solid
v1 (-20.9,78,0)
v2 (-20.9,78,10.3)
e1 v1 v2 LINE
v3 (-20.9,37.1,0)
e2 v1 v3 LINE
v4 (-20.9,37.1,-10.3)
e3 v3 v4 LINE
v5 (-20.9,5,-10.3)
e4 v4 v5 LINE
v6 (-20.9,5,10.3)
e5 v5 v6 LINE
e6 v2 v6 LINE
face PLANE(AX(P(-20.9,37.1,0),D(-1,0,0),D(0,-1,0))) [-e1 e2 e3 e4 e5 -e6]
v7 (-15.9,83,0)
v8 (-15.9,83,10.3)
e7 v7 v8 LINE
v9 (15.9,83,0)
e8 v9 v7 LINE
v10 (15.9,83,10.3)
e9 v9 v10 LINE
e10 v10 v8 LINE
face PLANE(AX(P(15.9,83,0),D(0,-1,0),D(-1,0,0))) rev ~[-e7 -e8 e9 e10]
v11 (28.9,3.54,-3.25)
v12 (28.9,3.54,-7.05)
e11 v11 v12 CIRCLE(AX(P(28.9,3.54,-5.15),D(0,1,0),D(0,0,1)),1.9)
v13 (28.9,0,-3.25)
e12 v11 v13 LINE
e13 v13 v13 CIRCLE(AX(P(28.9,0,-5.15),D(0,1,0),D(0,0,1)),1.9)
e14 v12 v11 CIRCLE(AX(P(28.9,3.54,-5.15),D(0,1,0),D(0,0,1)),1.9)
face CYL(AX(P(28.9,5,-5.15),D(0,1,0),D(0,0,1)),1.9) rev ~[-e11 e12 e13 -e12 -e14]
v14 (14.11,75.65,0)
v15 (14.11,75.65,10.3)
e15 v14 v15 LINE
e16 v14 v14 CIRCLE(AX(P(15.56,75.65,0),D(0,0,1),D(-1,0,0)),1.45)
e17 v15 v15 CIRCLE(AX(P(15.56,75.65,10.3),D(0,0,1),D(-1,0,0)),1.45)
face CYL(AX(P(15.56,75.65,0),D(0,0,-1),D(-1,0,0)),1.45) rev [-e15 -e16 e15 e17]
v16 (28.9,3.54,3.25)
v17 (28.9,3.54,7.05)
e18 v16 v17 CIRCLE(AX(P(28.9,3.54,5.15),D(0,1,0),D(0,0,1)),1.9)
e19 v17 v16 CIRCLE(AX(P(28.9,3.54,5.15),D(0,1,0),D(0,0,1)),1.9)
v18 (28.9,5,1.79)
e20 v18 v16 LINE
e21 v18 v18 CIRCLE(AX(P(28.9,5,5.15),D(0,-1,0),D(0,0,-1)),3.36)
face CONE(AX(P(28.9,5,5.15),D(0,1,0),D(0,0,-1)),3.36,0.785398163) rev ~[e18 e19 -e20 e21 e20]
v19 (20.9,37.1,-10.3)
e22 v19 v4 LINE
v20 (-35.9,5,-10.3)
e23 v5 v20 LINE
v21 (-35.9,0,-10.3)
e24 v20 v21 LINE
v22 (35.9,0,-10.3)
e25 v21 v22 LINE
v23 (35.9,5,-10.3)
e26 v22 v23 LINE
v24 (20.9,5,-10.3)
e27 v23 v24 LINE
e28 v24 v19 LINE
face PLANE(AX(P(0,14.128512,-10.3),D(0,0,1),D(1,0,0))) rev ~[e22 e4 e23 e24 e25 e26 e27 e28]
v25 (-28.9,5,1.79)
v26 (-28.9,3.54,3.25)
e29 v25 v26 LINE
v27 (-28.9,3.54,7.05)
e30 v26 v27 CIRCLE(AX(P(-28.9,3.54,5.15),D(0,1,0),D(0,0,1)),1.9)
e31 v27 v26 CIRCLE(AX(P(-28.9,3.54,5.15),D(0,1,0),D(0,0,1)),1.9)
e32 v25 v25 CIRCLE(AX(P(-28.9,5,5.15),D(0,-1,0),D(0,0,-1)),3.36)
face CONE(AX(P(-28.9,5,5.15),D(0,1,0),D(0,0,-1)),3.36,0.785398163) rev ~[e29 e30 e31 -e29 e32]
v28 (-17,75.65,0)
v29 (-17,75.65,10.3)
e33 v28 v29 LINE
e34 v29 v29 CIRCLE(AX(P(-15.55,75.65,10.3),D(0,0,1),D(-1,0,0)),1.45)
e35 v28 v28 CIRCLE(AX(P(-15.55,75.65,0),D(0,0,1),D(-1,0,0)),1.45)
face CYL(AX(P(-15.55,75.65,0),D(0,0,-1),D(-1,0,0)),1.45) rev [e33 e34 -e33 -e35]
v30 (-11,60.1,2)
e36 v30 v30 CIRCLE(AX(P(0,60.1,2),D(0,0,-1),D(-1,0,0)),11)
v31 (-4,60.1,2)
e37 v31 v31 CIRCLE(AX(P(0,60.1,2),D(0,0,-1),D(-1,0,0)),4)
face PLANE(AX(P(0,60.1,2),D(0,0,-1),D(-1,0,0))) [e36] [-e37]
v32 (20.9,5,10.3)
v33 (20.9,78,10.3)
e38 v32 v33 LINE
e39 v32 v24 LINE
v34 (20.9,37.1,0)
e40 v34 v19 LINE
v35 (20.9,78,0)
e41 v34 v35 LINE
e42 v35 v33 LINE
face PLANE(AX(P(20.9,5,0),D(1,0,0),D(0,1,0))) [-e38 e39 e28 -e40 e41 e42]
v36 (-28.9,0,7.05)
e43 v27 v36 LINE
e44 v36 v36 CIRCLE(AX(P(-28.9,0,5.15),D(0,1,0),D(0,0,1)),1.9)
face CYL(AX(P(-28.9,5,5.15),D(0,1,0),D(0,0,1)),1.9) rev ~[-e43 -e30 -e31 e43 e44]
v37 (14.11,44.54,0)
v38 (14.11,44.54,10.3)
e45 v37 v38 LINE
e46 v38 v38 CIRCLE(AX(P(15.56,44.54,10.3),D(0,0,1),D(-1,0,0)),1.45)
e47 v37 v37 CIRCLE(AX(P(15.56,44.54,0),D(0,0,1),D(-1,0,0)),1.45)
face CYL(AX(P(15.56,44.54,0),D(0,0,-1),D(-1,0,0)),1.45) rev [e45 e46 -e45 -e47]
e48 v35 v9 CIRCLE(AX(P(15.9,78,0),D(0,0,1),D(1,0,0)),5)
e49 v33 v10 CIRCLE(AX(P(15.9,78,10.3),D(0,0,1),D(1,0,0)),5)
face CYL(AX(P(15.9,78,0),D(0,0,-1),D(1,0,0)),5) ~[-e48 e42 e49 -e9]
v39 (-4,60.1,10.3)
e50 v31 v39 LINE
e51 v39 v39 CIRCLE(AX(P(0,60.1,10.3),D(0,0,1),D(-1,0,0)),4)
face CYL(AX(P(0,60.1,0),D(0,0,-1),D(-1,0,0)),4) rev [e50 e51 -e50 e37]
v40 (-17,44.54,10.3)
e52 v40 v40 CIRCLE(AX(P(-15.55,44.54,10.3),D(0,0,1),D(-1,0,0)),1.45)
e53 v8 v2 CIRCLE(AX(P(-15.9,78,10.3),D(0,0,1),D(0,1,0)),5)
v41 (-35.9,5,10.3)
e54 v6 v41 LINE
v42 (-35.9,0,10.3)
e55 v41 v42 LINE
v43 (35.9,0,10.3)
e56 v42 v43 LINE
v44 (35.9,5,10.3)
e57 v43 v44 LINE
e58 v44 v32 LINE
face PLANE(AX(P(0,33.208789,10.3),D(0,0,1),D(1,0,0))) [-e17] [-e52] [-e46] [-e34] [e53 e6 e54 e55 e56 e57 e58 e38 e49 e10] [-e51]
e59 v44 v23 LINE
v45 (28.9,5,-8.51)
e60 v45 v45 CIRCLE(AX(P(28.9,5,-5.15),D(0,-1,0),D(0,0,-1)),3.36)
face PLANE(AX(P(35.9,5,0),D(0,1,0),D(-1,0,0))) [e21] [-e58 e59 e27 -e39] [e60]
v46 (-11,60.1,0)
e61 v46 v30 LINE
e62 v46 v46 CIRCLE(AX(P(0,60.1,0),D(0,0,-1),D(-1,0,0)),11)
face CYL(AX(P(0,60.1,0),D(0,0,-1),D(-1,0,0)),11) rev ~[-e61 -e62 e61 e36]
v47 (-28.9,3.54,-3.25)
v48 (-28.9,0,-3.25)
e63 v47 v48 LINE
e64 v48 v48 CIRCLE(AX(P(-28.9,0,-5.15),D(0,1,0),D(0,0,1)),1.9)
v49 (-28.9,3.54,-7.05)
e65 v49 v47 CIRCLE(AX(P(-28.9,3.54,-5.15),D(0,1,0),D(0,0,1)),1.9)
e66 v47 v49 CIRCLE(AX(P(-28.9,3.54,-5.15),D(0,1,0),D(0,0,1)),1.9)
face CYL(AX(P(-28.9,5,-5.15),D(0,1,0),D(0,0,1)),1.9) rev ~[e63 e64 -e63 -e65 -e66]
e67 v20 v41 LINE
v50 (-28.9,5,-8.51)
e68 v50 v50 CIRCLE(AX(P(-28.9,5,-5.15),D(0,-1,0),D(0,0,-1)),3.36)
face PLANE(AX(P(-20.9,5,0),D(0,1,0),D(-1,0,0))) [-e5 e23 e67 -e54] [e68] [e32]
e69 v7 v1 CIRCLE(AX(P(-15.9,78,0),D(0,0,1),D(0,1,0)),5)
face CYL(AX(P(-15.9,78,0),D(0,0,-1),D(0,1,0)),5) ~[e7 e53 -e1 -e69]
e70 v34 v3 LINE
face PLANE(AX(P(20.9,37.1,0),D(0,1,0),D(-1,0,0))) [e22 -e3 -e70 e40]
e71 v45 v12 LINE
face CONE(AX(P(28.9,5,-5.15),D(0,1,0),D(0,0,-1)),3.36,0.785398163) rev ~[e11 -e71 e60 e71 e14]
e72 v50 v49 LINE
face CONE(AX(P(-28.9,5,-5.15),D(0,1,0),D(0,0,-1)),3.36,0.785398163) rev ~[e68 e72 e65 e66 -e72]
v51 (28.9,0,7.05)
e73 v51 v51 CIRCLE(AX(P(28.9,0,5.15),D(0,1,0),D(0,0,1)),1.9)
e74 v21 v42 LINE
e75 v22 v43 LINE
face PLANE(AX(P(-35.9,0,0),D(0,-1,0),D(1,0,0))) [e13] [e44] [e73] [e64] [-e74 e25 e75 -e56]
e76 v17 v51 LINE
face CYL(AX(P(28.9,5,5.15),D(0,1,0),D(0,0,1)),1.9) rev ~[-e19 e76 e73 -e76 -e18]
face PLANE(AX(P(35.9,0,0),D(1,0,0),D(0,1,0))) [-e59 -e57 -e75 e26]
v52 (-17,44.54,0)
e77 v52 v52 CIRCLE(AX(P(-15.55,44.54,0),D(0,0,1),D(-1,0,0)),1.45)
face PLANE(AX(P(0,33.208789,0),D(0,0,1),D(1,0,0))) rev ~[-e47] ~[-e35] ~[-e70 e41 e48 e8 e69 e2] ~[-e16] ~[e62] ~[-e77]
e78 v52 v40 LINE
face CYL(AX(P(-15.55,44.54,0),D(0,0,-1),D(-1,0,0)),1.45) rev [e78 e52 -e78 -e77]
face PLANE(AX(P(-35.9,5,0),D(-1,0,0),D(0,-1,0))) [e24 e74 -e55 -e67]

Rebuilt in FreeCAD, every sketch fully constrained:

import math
import FreeCAD as App
import Part
import Sketcher
from FreeCAD import Vector
Q = App.Units.Quantity


def add_polygon(sketch, points):
    """Adds a closed chain of lines whose ends are joined by coincident constraints."""
    first, n = sketch.GeometryCount, len(points)
    for a, b in zip(points, points[1:] + points[:1]):
        sketch.addGeometry(Part.LineSegment(App.Vector(*a, 0), App.Vector(*b, 0)), False)
    for i in range(n):
        sketch.addConstraint(Sketcher.Constraint("Coincident", first + i, 2, first + (i + 1) % n, 1))

doc = App.newDocument("Part")
params = doc.addObject("Spreadsheet::Sheet", "Params")
for row, (alias, value) in enumerate([
    ("sketch1_diameter", "8 mm"),
    ("sketch1_radius", "5 mm"),
    ("sketch1_diameter2", "2.9 mm"),
    ("sketch1_width", "15 mm"),
    ("sketch1_height", "5 mm"),
    ("pad1_length", "10.3 mm"),
    ("sketch2_diameter", "3.8 mm"),
    ("pocket1_length", "10.3 mm"),
    ("sketch3_diameter", "3.6 mm"),
    ("hole_diameter", "3.6 mm"),
    ("hole_csink_diameter", "6.72 mm"),
    ("sketch4_diameter", "22 mm"),
    ("pocket2_length", "2 mm"),
    ("sketch5_width", "15 mm"),
    ("sketch5_height", "5 mm"),
    ("sketch5_width2", "41.8 mm"),
    ("sketch5_height2", "32.1 mm"),
    ("pad2_length", "10.3 mm"),
    ("sketch6_diameter", "3.8 mm"),
    ("pocket3_length", "10.3 mm"),
    ("sketch7_diameter", "3.6 mm"),
    ("hole2_diameter", "3.6 mm"),
    ("hole2_csink_diameter", "6.72 mm"),
], start=1):
    params.set(f"A{row}", alias)
    params.set(f"B{row}", "=" + value)
    params.setAlias(f"B{row}", alias)

body = doc.addObject("PartDesign::Body", "Body")

# Sketch on XY plane
sketch1 = body.newObject("Sketcher::SketchObject", "Sketch")
sketch1.AttachmentSupport = (doc.getObject("XY_Plane"), [""])
sketch1.MapMode = "FlatFace"
sketch1.addGeometry(Part.LineSegment(Vector(-35.9, 0, 0), Vector(35.9, 0, 0)), False)
sketch1.addGeometry(Part.LineSegment(Vector(35.9, 0, 0), Vector(35.9, 5, 0)), False)
sketch1.addGeometry(Part.LineSegment(Vector(35.9, 5, 0), Vector(20.9, 5, 0)), False)
sketch1.addGeometry(Part.LineSegment(Vector(20.9, 5, 0), Vector(20.9, 78, 0)), False)
sketch1.addGeometry(Part.ArcOfCircle(Part.Circle(Vector(15.9, 78, 0), Vector(0, 0, 1), 5), math.radians(0), math.radians(90)), False)
sketch1.addGeometry(Part.LineSegment(Vector(15.9, 83, 0), Vector(-15.9, 83, 0)), False)
sketch1.addGeometry(Part.ArcOfCircle(Part.Circle(Vector(-15.9, 78, 0), Vector(0, 0, 1), 5), math.radians(90), math.radians(180)), False)
sketch1.addGeometry(Part.LineSegment(Vector(-20.9, 78, 0), Vector(-20.9, 5, 0)), False)
sketch1.addGeometry(Part.LineSegment(Vector(-20.9, 5, 0), Vector(-35.9, 5, 0)), False)
sketch1.addGeometry(Part.LineSegment(Vector(-35.9, 5, 0), Vector(-35.9, 0, 0)), False)
sketch1.addGeometry(Part.Circle(Vector(-15.55, 44.54, 0), Vector(0, 0, 1), 1.45), False)
sketch1.addGeometry(Part.Circle(Vector(15.56, 44.54, 0), Vector(0, 0, 1), 1.45), False)
sketch1.addGeometry(Part.Circle(Vector(0, 60.1, 0), Vector(0, 0, 1), 4), False)
sketch1.addGeometry(Part.Circle(Vector(-15.55, 75.65, 0), Vector(0, 0, 1), 1.45), False)
sketch1.addGeometry(Part.Circle(Vector(15.56, 75.65, 0), Vector(0, 0, 1), 1.45), False)
sketch1.addConstraint(Sketcher.Constraint("Coincident", 0, 2, 1, 1))
sketch1.addConstraint(Sketcher.Constraint("Coincident", 1, 2, 2, 1))
sketch1.addConstraint(Sketcher.Constraint("Coincident", 2, 2, 3, 1))
sketch1.addConstraint(Sketcher.Constraint("Tangent", 3, 2, 4, 1))
sketch1.addConstraint(Sketcher.Constraint("Tangent", 4, 2, 5, 1))
sketch1.addConstraint(Sketcher.Constraint("Tangent", 5, 2, 6, 1))
sketch1.addConstraint(Sketcher.Constraint("Tangent", 6, 2, 7, 1))
sketch1.addConstraint(Sketcher.Constraint("Coincident", 7, 2, 8, 1))
sketch1.addConstraint(Sketcher.Constraint("Coincident", 8, 2, 9, 1))
sketch1.addConstraint(Sketcher.Constraint("Coincident", 9, 2, 0, 1))
sketch1.addConstraint(Sketcher.Constraint("Horizontal", 0))
sketch1.addConstraint(Sketcher.Constraint("Vertical", 1))
sketch1.addConstraint(Sketcher.Constraint("Horizontal", 2))
sketch1.addConstraint(Sketcher.Constraint("Vertical", 3))
sketch1.addConstraint(Sketcher.Constraint("Horizontal", 5))
sketch1.addConstraint(Sketcher.Constraint("Vertical", 7))
sketch1.addConstraint(Sketcher.Constraint("Horizontal", 8))
sketch1.addConstraint(Sketcher.Constraint("Vertical", 9))
sketch1.addConstraint(Sketcher.Constraint("Equal", 4, 6))
sketch1.addConstraint(Sketcher.Constraint("Equal", 10, 11))
sketch1.addConstraint(Sketcher.Constraint("Equal", 11, 13))
sketch1.addConstraint(Sketcher.Constraint("Equal", 13, 14))
sketch1.addConstraint(Sketcher.Constraint("Symmetric", 0, 2, 9, 2, -1, 1))
sketch1.addConstraint(Sketcher.Constraint("Symmetric", 2, 2, 7, 2, -2))
sketch1.addConstraint(Sketcher.Constraint("PointOnObject", 12, 3, -2))
sketch1.addConstraint(Sketcher.Constraint("Horizontal", 10, 3, 11, 3))
sketch1.addConstraint(Sketcher.Constraint("Horizontal", 13, 3, 14, 3))
sketch1.addConstraint(Sketcher.Constraint("Vertical", 10, 3, 13, 3))
sketch1.addConstraint(Sketcher.Constraint("Vertical", 11, 3, 14, 3))
sketch1.addConstraint(Sketcher.Constraint("Diameter", 12, Q("8 mm")))
sketch1.addConstraint(Sketcher.Constraint("Radius", 4, Q("5 mm")))
sketch1.addConstraint(Sketcher.Constraint("Diameter", 10, Q("2.9 mm")))
sketch1.addConstraint(Sketcher.Constraint("DistanceX", 2, 2, 2, 1, Q("15 mm")))
sketch1.addConstraint(Sketcher.Constraint("DistanceY", 1, 1, 1, 2, Q("5 mm")))
sketch1.addConstraint(Sketcher.Constraint("DistanceY", 3, 1, 3, 2, Q("73 mm")))
sketch1.addConstraint(Sketcher.Constraint("DistanceX", 0, 1, 0, 2, Q("71.8 mm")))
sketch1.addConstraint(Sketcher.Constraint("DistanceY", -1, 1, 12, 3, Q("60.1 mm")))
sketch1.addConstraint(Sketcher.Constraint("DistanceX", 10, 3, -1, 1, Q("15.55 mm")))
sketch1.addConstraint(Sketcher.Constraint("DistanceY", -1, 1, 10, 3, Q("44.54 mm")))
sketch1.addConstraint(Sketcher.Constraint("DistanceX", -1, 1, 11, 3, Q("15.56 mm")))
sketch1.addConstraint(Sketcher.Constraint("DistanceY", -1, 1, 13, 3, Q("75.65 mm")))
sketch1.setExpression("Constraints[29]", "Params.sketch1_diameter")
sketch1.setExpression("Constraints[30]", "Params.sketch1_radius")
sketch1.setExpression("Constraints[31]", "Params.sketch1_diameter2")
sketch1.setExpression("Constraints[32]", "Params.sketch1_width")
sketch1.setExpression("Constraints[33]", "Params.sketch1_height")
pad1 = body.newObject("PartDesign::Pad", "Pad")
pad1.Profile = sketch1
pad1.setExpression("Length", "Params.pad1_length")

# Sketch on XZ plane
sketch2 = body.newObject("Sketcher::SketchObject", "Sketch001")
sketch2.AttachmentSupport = (doc.getObject("XZ_Plane"), [""])
sketch2.MapMode = "FlatFace"
sketch2.AttachmentOffset = App.Placement(Vector(0, 0, -5), App.Rotation())
sketch2.addGeometry(Part.Circle(Vector(28.9, 5.15, 0), Vector(0, 0, 1), 1.9), False)
sketch2.addGeometry(Part.Circle(Vector(-28.9, 5.15, 0), Vector(0, 0, 1), 1.9), False)
sketch2.addConstraint(Sketcher.Constraint("Equal", 0, 1))
sketch2.addConstraint(Sketcher.Constraint("Symmetric", 0, 3, 1, 3, -2))
sketch2.addConstraint(Sketcher.Constraint("Diameter", 0, Q("3.8 mm")))
sketch2.addConstraint(Sketcher.Constraint("DistanceX", -1, 1, 0, 3, Q("28.9 mm")))
sketch2.addConstraint(Sketcher.Constraint("DistanceY", -1, 1, 0, 3, Q("5.15 mm")))
sketch2.setExpression("Constraints[2]", "Params.sketch2_diameter")
pocket1 = body.newObject("PartDesign::Pocket", "Pocket")
pocket1.Profile = sketch2
pocket1.setExpression("Length", "Params.pocket1_length")
pocket1.Reversed = True

# Sketch on XZ plane
sketch3 = body.newObject("Sketcher::SketchObject", "Sketch002")
sketch3.AttachmentSupport = (doc.getObject("XZ_Plane"), [""])
sketch3.MapMode = "FlatFace"
sketch3.AttachmentOffset = App.Placement(Vector(0, 0, -5), App.Rotation())
sketch3.addGeometry(Part.Circle(Vector(-28.9, 5.15, 0), Vector(0, 0, 1), 1.8), False)
sketch3.addGeometry(Part.Circle(Vector(28.9, 5.15, 0), Vector(0, 0, 1), 1.8), False)
sketch3.addConstraint(Sketcher.Constraint("Equal", 0, 1))
sketch3.addConstraint(Sketcher.Constraint("Symmetric", 0, 3, 1, 3, -2))
sketch3.addConstraint(Sketcher.Constraint("Diameter", 0, Q("3.6 mm")))
sketch3.addConstraint(Sketcher.Constraint("DistanceX", 0, 3, -1, 1, Q("28.9 mm")))
sketch3.addConstraint(Sketcher.Constraint("DistanceY", -1, 1, 0, 3, Q("5.15 mm")))
sketch3.setExpression("Constraints[2]", "Params.sketch3_diameter")
doc.recompute()
hole = body.newObject("PartDesign::Hole", "Hole")
hole.Profile = sketch3
hole.ThreadType = "None"
hole.setExpression("Diameter", "Params.hole_diameter")
hole.DepthType = "ThroughAll"
hole.HoleCutType = "Countersink"
hole.setExpression("HoleCutDiameter", "Params.hole_csink_diameter")
hole.HoleCutCountersinkAngle = 90
hole.Reversed = True

# Sketch on XY plane
sketch4 = body.newObject("Sketcher::SketchObject", "Sketch003")
sketch4.AttachmentSupport = (doc.getObject("XY_Plane"), [""])
sketch4.MapMode = "FlatFace"
sketch4.addGeometry(Part.Circle(Vector(0, 60.1, 0), Vector(0, 0, 1), 11), False)
sketch4.addConstraint(Sketcher.Constraint("PointOnObject", 0, 3, -2))
sketch4.addConstraint(Sketcher.Constraint("Diameter", 0, Q("22 mm")))
sketch4.addConstraint(Sketcher.Constraint("DistanceY", -1, 1, 0, 3, Q("60.1 mm")))
sketch4.setExpression("Constraints[1]", "Params.sketch4_diameter")
pocket2 = body.newObject("PartDesign::Pocket", "Pocket001")
pocket2.Profile = sketch4
pocket2.setExpression("Length", "Params.pocket2_length")
pocket2.Reversed = True

# Sketch on XY plane
sketch5 = body.newObject("Sketcher::SketchObject", "Sketch004")
sketch5.AttachmentSupport = (doc.getObject("XY_Plane"), [""])
sketch5.MapMode = "FlatFace"
add_polygon(sketch5, [(-20.9, 37.1), (20.9, 37.1), (20.9, 5), (35.9, 5), (35.9, 0), (-35.9, 0), (-35.9, 5), (-20.9, 5)])  # lines 0-7
sketch5.addConstraint(Sketcher.Constraint("Horizontal", 0))
sketch5.addConstraint(Sketcher.Constraint("Vertical", 1))
sketch5.addConstraint(Sketcher.Constraint("Horizontal", 2))
sketch5.addConstraint(Sketcher.Constraint("Vertical", 3))
sketch5.addConstraint(Sketcher.Constraint("Horizontal", 4))
sketch5.addConstraint(Sketcher.Constraint("Vertical", 5))
sketch5.addConstraint(Sketcher.Constraint("Horizontal", 6))
sketch5.addConstraint(Sketcher.Constraint("Vertical", 7))
sketch5.addConstraint(Sketcher.Constraint("Symmetric", 3, 2, 4, 2, -1, 1))
sketch5.addConstraint(Sketcher.Constraint("Symmetric", 1, 2, 6, 2, -2))
sketch5.addConstraint(Sketcher.Constraint("DistanceX", 2, 1, 2, 2, Q("15 mm")))
sketch5.addConstraint(Sketcher.Constraint("DistanceY", 3, 2, 3, 1, Q("5 mm")))
sketch5.addConstraint(Sketcher.Constraint("DistanceX", 0, 1, 0, 2, Q("41.8 mm")))
sketch5.addConstraint(Sketcher.Constraint("DistanceY", 1, 2, 1, 1, Q("32.1 mm")))
sketch5.setExpression("Constraints[18]", "Params.sketch5_width")
sketch5.setExpression("Constraints[19]", "Params.sketch5_height")
sketch5.setExpression("Constraints[20]", "Params.sketch5_width2")
sketch5.setExpression("Constraints[21]", "Params.sketch5_height2")
pad2 = body.newObject("PartDesign::Pad", "Pad001")
pad2.Profile = sketch5
pad2.setExpression("Length", "Params.pad2_length")
pad2.Reversed = True

# Sketch on XZ plane
sketch6 = body.newObject("Sketcher::SketchObject", "Sketch005")
sketch6.AttachmentSupport = (doc.getObject("XZ_Plane"), [""])
sketch6.MapMode = "FlatFace"
sketch6.AttachmentOffset = App.Placement(Vector(0, 0, -5), App.Rotation())
sketch6.addGeometry(Part.Circle(Vector(28.9, -5.15, 0), Vector(0, 0, 1), 1.9), False)
sketch6.addGeometry(Part.Circle(Vector(-28.9, -5.15, 0), Vector(0, 0, 1), 1.9), False)
sketch6.addConstraint(Sketcher.Constraint("Equal", 0, 1))
sketch6.addConstraint(Sketcher.Constraint("Symmetric", 0, 3, 1, 3, -2))
sketch6.addConstraint(Sketcher.Constraint("Diameter", 0, Q("3.8 mm")))
sketch6.addConstraint(Sketcher.Constraint("DistanceX", -1, 1, 0, 3, Q("28.9 mm")))
sketch6.addConstraint(Sketcher.Constraint("DistanceY", 0, 3, -1, 1, Q("5.15 mm")))
sketch6.setExpression("Constraints[2]", "Params.sketch6_diameter")
pocket3 = body.newObject("PartDesign::Pocket", "Pocket002")
pocket3.Profile = sketch6
pocket3.setExpression("Length", "Params.pocket3_length")
pocket3.Reversed = True

# Sketch on XZ plane
sketch7 = body.newObject("Sketcher::SketchObject", "Sketch006")
sketch7.AttachmentSupport = (doc.getObject("XZ_Plane"), [""])
sketch7.MapMode = "FlatFace"
sketch7.AttachmentOffset = App.Placement(Vector(0, 0, -5), App.Rotation())
sketch7.addGeometry(Part.Circle(Vector(-28.9, -5.15, 0), Vector(0, 0, 1), 1.8), False)
sketch7.addGeometry(Part.Circle(Vector(28.9, -5.15, 0), Vector(0, 0, 1), 1.8), False)
sketch7.addConstraint(Sketcher.Constraint("Equal", 0, 1))
sketch7.addConstraint(Sketcher.Constraint("Symmetric", 0, 3, 1, 3, -2))
sketch7.addConstraint(Sketcher.Constraint("Diameter", 0, Q("3.6 mm")))
sketch7.addConstraint(Sketcher.Constraint("DistanceX", 0, 3, -1, 1, Q("28.9 mm")))
sketch7.addConstraint(Sketcher.Constraint("DistanceY", 0, 3, -1, 1, Q("5.15 mm")))
sketch7.setExpression("Constraints[2]", "Params.sketch7_diameter")
doc.recompute()
hole2 = body.newObject("PartDesign::Hole", "Hole001")
hole2.Profile = sketch7
hole2.ThreadType = "None"
hole2.setExpression("Diameter", "Params.hole2_diameter")
hole2.DepthType = "ThroughAll"
hole2.HoleCutType = "Countersink"
hole2.setExpression("HoleCutDiameter", "Params.hole2_csink_diameter")
hole2.HoleCutCountersinkAngle = 90
hole2.Reversed = True

doc.recompute()
